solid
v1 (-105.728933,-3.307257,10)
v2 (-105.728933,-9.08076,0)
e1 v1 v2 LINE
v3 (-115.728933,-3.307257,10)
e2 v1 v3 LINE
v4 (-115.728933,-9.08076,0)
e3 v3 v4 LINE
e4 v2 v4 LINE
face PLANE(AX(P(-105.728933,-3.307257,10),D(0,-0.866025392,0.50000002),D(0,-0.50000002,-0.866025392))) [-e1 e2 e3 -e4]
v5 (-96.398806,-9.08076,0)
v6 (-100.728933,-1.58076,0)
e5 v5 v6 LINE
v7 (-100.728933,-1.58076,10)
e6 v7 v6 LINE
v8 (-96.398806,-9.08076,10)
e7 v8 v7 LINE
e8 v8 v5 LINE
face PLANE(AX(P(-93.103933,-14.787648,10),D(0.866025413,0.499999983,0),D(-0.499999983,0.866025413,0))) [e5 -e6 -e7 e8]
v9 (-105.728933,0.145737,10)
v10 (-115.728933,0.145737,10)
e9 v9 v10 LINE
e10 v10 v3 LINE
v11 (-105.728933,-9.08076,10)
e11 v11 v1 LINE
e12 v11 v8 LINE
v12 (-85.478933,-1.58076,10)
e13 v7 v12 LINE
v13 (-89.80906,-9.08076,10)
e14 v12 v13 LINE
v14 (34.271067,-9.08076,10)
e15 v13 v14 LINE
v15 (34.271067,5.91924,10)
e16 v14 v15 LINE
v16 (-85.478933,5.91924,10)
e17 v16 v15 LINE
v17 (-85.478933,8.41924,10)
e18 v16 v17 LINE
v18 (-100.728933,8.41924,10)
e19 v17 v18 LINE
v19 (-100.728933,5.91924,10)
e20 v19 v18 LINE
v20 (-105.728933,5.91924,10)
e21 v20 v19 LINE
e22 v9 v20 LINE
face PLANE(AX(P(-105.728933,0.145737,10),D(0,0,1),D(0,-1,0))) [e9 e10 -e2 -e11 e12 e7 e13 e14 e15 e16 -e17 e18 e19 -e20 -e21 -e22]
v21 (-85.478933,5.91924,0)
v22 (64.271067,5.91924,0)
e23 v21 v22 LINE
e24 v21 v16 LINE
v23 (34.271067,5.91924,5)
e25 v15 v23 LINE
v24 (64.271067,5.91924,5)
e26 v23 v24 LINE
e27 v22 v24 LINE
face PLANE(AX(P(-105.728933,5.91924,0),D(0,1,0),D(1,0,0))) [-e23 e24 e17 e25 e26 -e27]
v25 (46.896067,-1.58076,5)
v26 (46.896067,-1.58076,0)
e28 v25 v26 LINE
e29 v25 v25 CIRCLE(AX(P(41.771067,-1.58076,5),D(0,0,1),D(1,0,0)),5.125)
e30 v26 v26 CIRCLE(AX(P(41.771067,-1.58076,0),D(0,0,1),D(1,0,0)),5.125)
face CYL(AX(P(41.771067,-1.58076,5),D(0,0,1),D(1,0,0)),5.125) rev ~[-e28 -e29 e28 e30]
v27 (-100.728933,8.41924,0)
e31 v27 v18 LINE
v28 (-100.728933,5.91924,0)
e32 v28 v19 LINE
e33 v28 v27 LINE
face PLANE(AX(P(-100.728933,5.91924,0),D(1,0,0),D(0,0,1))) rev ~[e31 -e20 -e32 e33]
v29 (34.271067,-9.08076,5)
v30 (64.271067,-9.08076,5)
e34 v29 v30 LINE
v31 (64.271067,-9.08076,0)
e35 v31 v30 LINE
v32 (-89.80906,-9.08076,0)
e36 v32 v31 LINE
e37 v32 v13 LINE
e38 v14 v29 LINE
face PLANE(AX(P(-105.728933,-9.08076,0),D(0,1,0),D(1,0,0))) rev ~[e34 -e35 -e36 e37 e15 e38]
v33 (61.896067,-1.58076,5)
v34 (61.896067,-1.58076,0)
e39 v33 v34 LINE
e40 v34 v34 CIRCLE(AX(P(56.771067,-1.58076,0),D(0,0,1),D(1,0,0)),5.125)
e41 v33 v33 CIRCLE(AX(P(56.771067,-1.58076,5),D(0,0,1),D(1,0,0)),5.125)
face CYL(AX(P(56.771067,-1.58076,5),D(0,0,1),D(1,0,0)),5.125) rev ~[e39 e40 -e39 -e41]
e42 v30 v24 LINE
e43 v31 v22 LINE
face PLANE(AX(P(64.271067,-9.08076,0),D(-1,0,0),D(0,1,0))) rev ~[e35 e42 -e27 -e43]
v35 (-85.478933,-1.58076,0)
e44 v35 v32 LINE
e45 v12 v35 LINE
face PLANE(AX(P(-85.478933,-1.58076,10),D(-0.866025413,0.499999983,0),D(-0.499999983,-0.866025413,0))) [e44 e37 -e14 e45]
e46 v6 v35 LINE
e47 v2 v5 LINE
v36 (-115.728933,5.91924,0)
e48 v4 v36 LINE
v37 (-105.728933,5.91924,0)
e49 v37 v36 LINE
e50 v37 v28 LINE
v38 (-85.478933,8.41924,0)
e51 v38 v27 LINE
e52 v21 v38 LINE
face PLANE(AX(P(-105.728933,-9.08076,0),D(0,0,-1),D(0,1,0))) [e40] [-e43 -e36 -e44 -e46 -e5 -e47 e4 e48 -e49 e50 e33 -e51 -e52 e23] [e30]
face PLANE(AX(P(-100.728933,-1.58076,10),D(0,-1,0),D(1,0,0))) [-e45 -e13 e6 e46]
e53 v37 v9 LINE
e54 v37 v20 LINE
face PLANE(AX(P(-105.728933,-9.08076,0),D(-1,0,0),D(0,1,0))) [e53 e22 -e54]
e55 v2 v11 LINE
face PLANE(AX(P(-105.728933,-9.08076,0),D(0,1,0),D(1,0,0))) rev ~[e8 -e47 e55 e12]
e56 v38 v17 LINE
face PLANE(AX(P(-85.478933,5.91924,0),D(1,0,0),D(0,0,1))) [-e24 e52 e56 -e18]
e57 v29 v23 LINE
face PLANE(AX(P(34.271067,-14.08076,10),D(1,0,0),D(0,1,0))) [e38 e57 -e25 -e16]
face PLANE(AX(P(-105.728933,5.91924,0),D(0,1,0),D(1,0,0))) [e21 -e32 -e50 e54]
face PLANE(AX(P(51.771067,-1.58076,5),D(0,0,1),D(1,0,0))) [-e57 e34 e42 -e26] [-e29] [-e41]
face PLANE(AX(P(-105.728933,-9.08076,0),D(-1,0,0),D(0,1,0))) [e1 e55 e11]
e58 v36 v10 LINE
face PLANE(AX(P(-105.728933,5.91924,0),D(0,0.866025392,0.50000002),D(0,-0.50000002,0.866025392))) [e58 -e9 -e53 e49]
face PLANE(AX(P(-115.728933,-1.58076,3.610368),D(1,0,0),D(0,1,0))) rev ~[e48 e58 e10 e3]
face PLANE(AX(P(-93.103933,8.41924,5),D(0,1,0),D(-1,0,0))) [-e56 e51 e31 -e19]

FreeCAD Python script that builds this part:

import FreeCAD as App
import Part
import Sketcher

V = App.Vector
Q = App.Units.Quantity


def add_polygon(sketch, points):
    """Adds a closed chain of lines whose ends are joined by coincident constraints."""
    first, n = sketch.GeometryCount, len(points)
    for a, b in zip(points, points[1:] + points[:1]):
        sketch.addGeometry(Part.LineSegment(App.Vector(*a, 0), App.Vector(*b, 0)), False)
    for i in range(n):
        sketch.addConstraint(Sketcher.Constraint("Coincident", first + i, 2, first + (i + 1) % n, 1))

doc = App.newDocument("Part")
body = doc.addObject("PartDesign::Body", "Body")

# Sketch on XY plane
sketch1 = doc.addObject("Sketcher::SketchObject", "Sketch")
body.addObject(sketch1)
sketch1.AttachmentSupport = (doc.XY_Plane, [""])
sketch1.MapMode = "FlatFace"
add_polygon(sketch1, [(-105.728933, 5.91924), (-105.728933, -9.08076), (64.271067, -9.08076), (64.271067, 5.91924)])  # lines 0-3
sketch1.addConstraint(Sketcher.Constraint("Vertical", 0))
sketch1.addConstraint(Sketcher.Constraint("Horizontal", 1))
sketch1.addConstraint(Sketcher.Constraint("Vertical", 2))
sketch1.addConstraint(Sketcher.Constraint("Horizontal", 3))
sketch1.addConstraint(Sketcher.Constraint("DistanceX", 1, 1, 1, 2, 170.0))
sketch1.addConstraint(Sketcher.Constraint("DistanceY", 0, 2, 0, 1, 15.0))
sketch1.addConstraint(Sketcher.Constraint("DistanceY", 0, 2, -1, 1, 9.08076))
sketch1.addConstraint(Sketcher.Constraint("DistanceX", 0, 2, -1, 1, 105.728933))
pad1 = doc.addObject("PartDesign::Pad", "Pad")
body.addObject(pad1)
pad1.Profile = sketch1
pad1.Length = 10

# Sketch on XY plane
sketch2 = doc.addObject("Sketcher::SketchObject", "Sketch001")
body.addObject(sketch2)
sketch2.AttachmentSupport = (doc.XY_Plane, [""])
sketch2.MapMode = "FlatFace"
sketch2.AttachmentOffset = App.Placement(V(0, 0, 10), App.Rotation())
add_polygon(sketch2, [(34.271067, 10.91924), (34.271067, -14.08076), (69.271067, -14.08076), (69.271067, 10.91924)])  # lines 0-3
sketch2.addConstraint(Sketcher.Constraint("Vertical", 0))
sketch2.addConstraint(Sketcher.Constraint("Horizontal", 1))
sketch2.addConstraint(Sketcher.Constraint("Vertical", 2))
sketch2.addConstraint(Sketcher.Constraint("Horizontal", 3))
sketch2.addConstraint(Sketcher.Constraint("DistanceX", 1, 1, 1, 2, 35.0))
sketch2.addConstraint(Sketcher.Constraint("DistanceY", 0, 2, 0, 1, 25.0))
sketch2.addConstraint(Sketcher.Constraint("DistanceY", 0, 2, -1, 1, 14.08076))
sketch2.addConstraint(Sketcher.Constraint("DistanceX", -1, 1, 0, 2, 34.271067))
pocket1 = doc.addObject("PartDesign::Pocket", "Pocket")
body.addObject(pocket1)
pocket1.Profile = sketch2
pocket1.Length = 5

# Sketch on YZ plane
sketch3 = doc.addObject("Sketcher::SketchObject", "Sketch002")
body.addObject(sketch3)
sketch3.AttachmentSupport = (doc.YZ_Plane, [""])
sketch3.MapMode = "FlatFace"
sketch3.AttachmentOffset = App.Placement(V(0, 0, -105.728933), App.Rotation())
add_polygon(sketch3, [(0.145737, 10), (5.91924, 0), (-9.08076, 0), (-3.307257, 10)])  # lines 0-3
sketch3.addConstraint(Sketcher.Constraint("Horizontal", 1))
sketch3.addConstraint(Sketcher.Constraint("Horizontal", 3))
sketch3.addConstraint(Sketcher.Constraint("PointOnObject", 0, 2, -1))
sketch3.addConstraint(Sketcher.Constraint("Equal", 0, 2))
sketch3.addConstraint(Sketcher.Constraint("DistanceX", 1, 2, 1, 1, 15.0))
sketch3.addConstraint(Sketcher.Constraint("Angle", 0, Q("-59.999999 deg")))
sketch3.addConstraint(Sketcher.Constraint("DistanceY", -1, 1, 2, 2, 10.0))
sketch3.addConstraint(Sketcher.Constraint("DistanceX", -1, 1, 0, 2, 5.91924))
pad2 = doc.addObject("PartDesign::Pad", "Pad001")
body.addObject(pad2)
pad2.Profile = sketch3
pad2.Length = 10
pad2.Reversed = True

# Sketch on XY plane
sketch4 = doc.addObject("Sketcher::SketchObject", "Sketch003")
body.addObject(sketch4)
sketch4.AttachmentSupport = (doc.XY_Plane, [""])
sketch4.MapMode = "FlatFace"
sketch4.AttachmentOffset = App.Placement(V(0, 0, 10), App.Rotation())
add_polygon(sketch4, [(-100.728933, -1.58076), (-93.103933, -14.787648), (-85.478933, -1.58076)])  # lines 0-2
sketch4.addConstraint(Sketcher.Constraint("Horizontal", 2))
sketch4.addConstraint(Sketcher.Constraint("Equal", 0, 1))
sketch4.addConstraint(Sketcher.Constraint("Angle", 0, Q("-60.000001 deg")))
sketch4.addConstraint(Sketcher.Constraint("DistanceX", 2, 2, 2, 1, 15.25))
sketch4.addConstraint(Sketcher.Constraint("DistanceY", 0, 2, -1, 1, 14.787648))
sketch4.addConstraint(Sketcher.Constraint("DistanceX", 0, 2, -1, 1, 93.103933))
pocket2 = doc.addObject("PartDesign::Pocket", "Pocket001")
body.addObject(pocket2)
pocket2.Profile = sketch4
pocket2.Length = 10

# Sketch on XY plane
sketch5 = doc.addObject("Sketcher::SketchObject", "Sketch004")
body.addObject(sketch5)
sketch5.AttachmentSupport = (doc.XY_Plane, [""])
sketch5.MapMode = "FlatFace"
sketch5.AttachmentOffset = App.Placement(V(0, 0, 5), App.Rotation())
sketch5.addGeometry(Part.Circle(V(56.771067, -1.58076, 0), V(0, 0, 1), 5.125), False)
sketch5.addGeometry(Part.Circle(V(41.771067, -1.58076, 0), V(0, 0, 1), 5.125), False)
sketch5.addConstraint(Sketcher.Constraint("Equal", 0, 1))
sketch5.addConstraint(Sketcher.Constraint("Horizontal", 0, 3, 1, 3))
sketch5.addConstraint(Sketcher.Constraint("Diameter", 0, 10.25))
sketch5.addConstraint(Sketcher.Constraint("DistanceX", 1, 3, 0, 3, 15.0))
sketch5.addConstraint(Sketcher.Constraint("DistanceY", 0, 3, -1, 1, 1.58076))
sketch5.addConstraint(Sketcher.Constraint("DistanceX", -1, 1, 0, 3, 56.771067))
pocket3 = doc.addObject("PartDesign::Pocket", "Pocket002")
body.addObject(pocket3)
pocket3.Profile = sketch5
pocket3.Length = 5

# Sketch on XZ plane
sketch6 = doc.addObject("Sketcher::SketchObject", "Sketch005")
body.addObject(sketch6)
sketch6.AttachmentSupport = (doc.XZ_Plane, [""])
sketch6.MapMode = "FlatFace"
sketch6.AttachmentOffset = App.Placement(V(0, 0, -5.91924), App.Rotation())
add_polygon(sketch6, [(-85.478933, 10), (-85.478933, 0), (-100.728933, 0), (-100.728933, 10)])  # lines 0-3
sketch6.addConstraint(Sketcher.Constraint("Vertical", 0))
sketch6.addConstraint(Sketcher.Constraint("Horizontal", 1))
sketch6.addConstraint(Sketcher.Constraint("Vertical", 2))
sketch6.addConstraint(Sketcher.Constraint("Horizontal", 3))
sketch6.addConstraint(Sketcher.Constraint("PointOnObject", 0, 2, -1))
sketch6.addConstraint(Sketcher.Constraint("DistanceY", 0, 2, 0, 1, 10.0))
sketch6.addConstraint(Sketcher.Constraint("DistanceX", 1, 2, 1, 1, 15.25))
sketch6.addConstraint(Sketcher.Constraint("DistanceX", 0, 2, -1, 1, 85.478933))
pad3 = doc.addObject("PartDesign::Pad", "Pad002")
body.addObject(pad3)
pad3.Profile = sketch6
pad3.Length = 2.5
pad3.Reversed = True

doc.recompute()
